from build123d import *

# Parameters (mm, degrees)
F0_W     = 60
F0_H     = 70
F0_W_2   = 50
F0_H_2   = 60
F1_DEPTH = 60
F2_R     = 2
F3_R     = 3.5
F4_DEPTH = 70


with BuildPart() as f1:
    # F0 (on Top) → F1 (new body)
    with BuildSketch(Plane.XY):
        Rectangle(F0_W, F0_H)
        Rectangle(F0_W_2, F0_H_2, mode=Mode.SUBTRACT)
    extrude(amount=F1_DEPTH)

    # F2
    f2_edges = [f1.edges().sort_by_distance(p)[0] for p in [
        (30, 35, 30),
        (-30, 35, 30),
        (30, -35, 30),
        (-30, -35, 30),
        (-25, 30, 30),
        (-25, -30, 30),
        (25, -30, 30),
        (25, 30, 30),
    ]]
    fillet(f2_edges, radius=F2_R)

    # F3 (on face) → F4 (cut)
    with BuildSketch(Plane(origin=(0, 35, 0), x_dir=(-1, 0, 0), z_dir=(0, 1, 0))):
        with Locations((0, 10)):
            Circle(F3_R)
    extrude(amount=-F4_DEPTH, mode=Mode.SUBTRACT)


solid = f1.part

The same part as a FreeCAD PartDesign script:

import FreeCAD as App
import Part
import Sketcher

V = App.Vector


def edges_at(feature, points):
    """Names of the edges that pass closest to the given points."""
    edges = feature.Shape.Edges
    near = lambda p: min(range(len(edges)), key=lambda i: edges[i].distToShape(Part.Vertex(*p))[0])
    return sorted({f"Edge{near(p) + 1}" for p in points})


def add_polygon(sketch, points):
    """Adds a closed chain of lines whose ends are joined by coincident constraints."""
    first, n = sketch.GeometryCount, len(points)
    for a, b in zip(points, points[1:] + points[:1]):
        sketch.addGeometry(Part.LineSegment(App.Vector(*a, 0), App.Vector(*b, 0)), False)
    for i in range(n):
        sketch.addConstraint(Sketcher.Constraint("Coincident", first + i, 2, first + (i + 1) % n, 1))

doc = App.newDocument("Part")
body = doc.addObject("PartDesign::Body", "Body")

# Sketch on XY plane
sketch1 = body.newObject("Sketcher::SketchObject", "Sketch")
sketch1.AttachmentSupport = (doc.getObject("XY_Plane"), [""])
sketch1.MapMode = "FlatFace"
add_polygon(sketch1, [(-30, 35), (-30, -35), (30, -35), (30, 35)])  # lines 0-3
add_polygon(sketch1, [(25, -30), (-25, -30), (-25, 30), (25, 30)])  # lines 4-7
sketch1.addConstraint(Sketcher.Constraint("Vertical", 0))
sketch1.addConstraint(Sketcher.Constraint("Horizontal", 1))
sketch1.addConstraint(Sketcher.Constraint("Vertical", 2))
sketch1.addConstraint(Sketcher.Constraint("Horizontal", 3))
sketch1.addConstraint(Sketcher.Constraint("Horizontal", 4))
sketch1.addConstraint(Sketcher.Constraint("Vertical", 5))
sketch1.addConstraint(Sketcher.Constraint("Horizontal", 6))
sketch1.addConstraint(Sketcher.Constraint("Vertical", 7))
sketch1.addConstraint(Sketcher.Constraint("Symmetric", 0, 2, 2, 2, -1, 1))
sketch1.addConstraint(Sketcher.Constraint("Symmetric", 4, 2, 6, 2, -1, 1))
sketch1.addConstraint(Sketcher.Constraint("Equal", 3, 5))
sketch1.addConstraint(Sketcher.Constraint("DistanceX", 1, 1, 1, 2, 60.0))
sketch1.addConstraint(Sketcher.Constraint("DistanceX", 4, 2, 4, 1, 50.0))
sketch1.addConstraint(Sketcher.Constraint("DistanceY", 0, 2, 0, 1, 70.0))
pad1 = body.newObject("PartDesign::Pad", "Pad")
pad1.Profile = sketch1
pad1.Length = 60
doc.recompute()

fillet = body.newObject("PartDesign::Fillet", "Fillet")
fillet.Base = (pad1, edges_at(pad1, [
    (30, 35, 30),
    (-30, 35, 30),
    (30, -35, 30),
    (-30, -35, 30),
    (-25, 30, 30),
    (-25, -30, 30),
    (25, -30, 30),
    (25, 30, 30),
]))
fillet.Radius = 2

# Sketch on XZ plane
sketch2 = body.newObject("Sketcher::SketchObject", "Sketch001")
sketch2.AttachmentSupport = (doc.getObject("XZ_Plane"), [""])
sketch2.MapMode = "FlatFace"
sketch2.AttachmentOffset = App.Placement(V(0, 0, -35), App.Rotation())
sketch2.addGeometry(Part.Circle(V(0, 10, 0), V(0, 0, 1), 3.5), False)
sketch2.addConstraint(Sketcher.Constraint("PointOnObject", 0, 3, -2))
sketch2.addConstraint(Sketcher.Constraint("Diameter", 0, 7.0))
sketch2.addConstraint(Sketcher.Constraint("DistanceY", -1, 1, 0, 3, 10.0))
pocket1 = body.newObject("PartDesign::Pocket", "Pocket")
pocket1.Profile = sketch2
pocket1.Length = 70
pocket1.Reversed = True

doc.recompute()
